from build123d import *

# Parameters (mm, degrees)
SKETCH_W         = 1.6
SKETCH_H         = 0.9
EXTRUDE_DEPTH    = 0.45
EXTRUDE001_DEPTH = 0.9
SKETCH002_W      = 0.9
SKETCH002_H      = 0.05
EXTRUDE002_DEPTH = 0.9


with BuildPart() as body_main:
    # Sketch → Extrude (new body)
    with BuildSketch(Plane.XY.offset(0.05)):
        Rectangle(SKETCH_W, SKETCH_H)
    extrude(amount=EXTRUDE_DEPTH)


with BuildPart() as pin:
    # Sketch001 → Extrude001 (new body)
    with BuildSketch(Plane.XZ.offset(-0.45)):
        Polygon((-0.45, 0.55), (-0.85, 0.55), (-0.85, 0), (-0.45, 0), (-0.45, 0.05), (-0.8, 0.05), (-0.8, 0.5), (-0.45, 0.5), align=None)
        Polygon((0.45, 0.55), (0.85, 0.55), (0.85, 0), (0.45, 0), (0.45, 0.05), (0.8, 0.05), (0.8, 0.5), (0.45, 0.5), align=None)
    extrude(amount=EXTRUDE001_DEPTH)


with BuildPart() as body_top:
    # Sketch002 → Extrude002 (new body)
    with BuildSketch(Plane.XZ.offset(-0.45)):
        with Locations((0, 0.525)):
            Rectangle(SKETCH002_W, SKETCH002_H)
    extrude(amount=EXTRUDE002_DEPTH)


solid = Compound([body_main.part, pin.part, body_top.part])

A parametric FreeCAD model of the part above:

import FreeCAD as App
import Part
import Sketcher

V = App.Vector

doc = App.newDocument("Part")
body = doc.addObject("PartDesign::Body", "Body")

# Sketch on XY plane
sketch1 = body.newObject("Sketcher::SketchObject", "Sketch")
sketch1.AttachmentSupport = (doc.getObject("XY_Plane"), [""])
sketch1.MapMode = "FlatFace"
sketch1.AttachmentOffset = App.Placement(V(0, 0, 0.05), App.Rotation())
sketch1.addGeometry([
    Part.LineSegment(V(-0.8, 0.5, 0), V(-0.8, -0.5, 0)),
    Part.LineSegment(V(-0.8, -0.5, 0), V(0.8, -0.5, 0)),
    Part.LineSegment(V(0.8, -0.5, 0), V(0.8, 0.5, 0)),
    Part.LineSegment(V(0.8, 0.5, 0), V(-0.8, 0.5, 0)),
], False)
sketch1.addConstraint([
    Sketcher.Constraint("Coincident", 0, 2, 1, 1),
    Sketcher.Constraint("Coincident", 1, 2, 2, 1),
    Sketcher.Constraint("Coincident", 2, 2, 3, 1),
    Sketcher.Constraint("Coincident", 3, 2, 0, 1),
    Sketcher.Constraint("Vertical", 0),
    Sketcher.Constraint("Horizontal", 1),
    Sketcher.Constraint("Vertical", 2),
    Sketcher.Constraint("Horizontal", 3),
    Sketcher.Constraint("Symmetric", 0, 2, 2, 2, -1, 1),
    Sketcher.Constraint("DistanceX", 1, 1, 1, 2, 1.6),
    Sketcher.Constraint("DistanceY", 0, 2, 0, 1, 0.9),
])
pad1 = body.newObject("PartDesign::Pad", "Pad")
pad1.Profile = sketch1
pad1.Length = 0.45
body2 = doc.addObject("PartDesign::Body", "Body001")
body2.AllowCompound = True

# Sketch on XZ plane
sketch2 = body2.newObject("Sketcher::SketchObject", "Sketch001")
sketch2.AttachmentSupport = (doc.getObject("XZ_Plane001"), [""])
sketch2.MapMode = "FlatFace"
sketch2.AttachmentOffset = App.Placement(V(0, 0, -0.45), App.Rotation())
sketch2.addGeometry([
    Part.LineSegment(V(-0.45, 0.55, 0), V(-0.85, 0.55, 0)),  # 0
    Part.LineSegment(V(-0.85, 0.55, 0), V(-0.85, 0, 0)),  # 1
    Part.LineSegment(V(-0.85, 0, 0), V(-0.45, 0, 0)),  # 2
    Part.LineSegment(V(-0.45, 0, 0), V(-0.45, 0.05, 0)),  # 3
    Part.LineSegment(V(-0.45, 0.05, 0), V(-0.8, 0.05, 0)),  # 4
    Part.LineSegment(V(-0.8, 0.05, 0), V(-0.8, 0.5, 0)),  # 5
    Part.LineSegment(V(-0.8, 0.5, 0), V(-0.45, 0.5, 0)),  # 6
    Part.LineSegment(V(-0.45, 0.5, 0), V(-0.45, 0.55, 0)),  # 7
    Part.LineSegment(V(0.85, 0.55, 0), V(0.45, 0.55, 0)),  # 8
    Part.LineSegment(V(0.45, 0.55, 0), V(0.45, 0.5, 0)),  # 9
    Part.LineSegment(V(0.45, 0.5, 0), V(0.8, 0.5, 0)),  # 10
    Part.LineSegment(V(0.8, 0.5, 0), V(0.8, 0.05, 0)),  # 11
    Part.LineSegment(V(0.8, 0.05, 0), V(0.45, 0.05, 0)),  # 12
    Part.LineSegment(V(0.45, 0.05, 0), V(0.45, 0, 0)),  # 13
    Part.LineSegment(V(0.45, 0, 0), V(0.85, 0, 0)),  # 14
    Part.LineSegment(V(0.85, 0, 0), V(0.85, 0.55, 0)),  # 15
], False)
sketch2.addConstraint([
    Sketcher.Constraint("Coincident", 0, 2, 1, 1),
    Sketcher.Constraint("Coincident", 1, 2, 2, 1),
    Sketcher.Constraint("Coincident", 2, 2, 3, 1),
    Sketcher.Constraint("Coincident", 3, 2, 4, 1),
    Sketcher.Constraint("Coincident", 4, 2, 5, 1),
    Sketcher.Constraint("Coincident", 5, 2, 6, 1),
    Sketcher.Constraint("Coincident", 6, 2, 7, 1),
    Sketcher.Constraint("Coincident", 7, 2, 0, 1),
    Sketcher.Constraint("Coincident", 8, 2, 9, 1),
    Sketcher.Constraint("Coincident", 9, 2, 10, 1),
    Sketcher.Constraint("Coincident", 10, 2, 11, 1),
    Sketcher.Constraint("Coincident", 11, 2, 12, 1),
    Sketcher.Constraint("Coincident", 12, 2, 13, 1),
    Sketcher.Constraint("Coincident", 13, 2, 14, 1),
    Sketcher.Constraint("Coincident", 14, 2, 15, 1),
    Sketcher.Constraint("Coincident", 15, 2, 8, 1),
    Sketcher.Constraint("Horizontal", 0),
    Sketcher.Constraint("Vertical", 1),
    Sketcher.Constraint("Horizontal", 2),
    Sketcher.Constraint("Vertical", 3),
    Sketcher.Constraint("Horizontal", 4),
    Sketcher.Constraint("Vertical", 5),
    Sketcher.Constraint("Horizontal", 6),
    Sketcher.Constraint("Vertical", 7),
    Sketcher.Constraint("Horizontal", 8),
    Sketcher.Constraint("Vertical", 9),
    Sketcher.Constraint("Horizontal", 10),
    Sketcher.Constraint("Vertical", 11),
    Sketcher.Constraint("Horizontal", 12),
    Sketcher.Constraint("Vertical", 13),
    Sketcher.Constraint("Horizontal", 14),
    Sketcher.Constraint("Vertical", 15),
    Sketcher.Constraint("Symmetric", 2, 2, 13, 2, -1, 1),
    Sketcher.Constraint("Symmetric", 7, 2, 8, 2, -2),
    Sketcher.Constraint("Symmetric", 5, 2, 10, 2, -2),
    Sketcher.Constraint("Symmetric", 1, 2, 14, 2, -2),
    Sketcher.Constraint("Horizontal", 4, 2, 11, 2),
    Sketcher.Constraint("Vertical", 3, 2, 6, 2),
    Sketcher.Constraint("Equal", 3, 7),
    Sketcher.Constraint("DistanceX", 0, 2, 0, 1, 0.4),
    Sketcher.Constraint("DistanceX", 4, 2, 4, 1, 0.35),
    Sketcher.Constraint("DistanceY", 1, 2, 1, 1, 0.55),
    Sketcher.Constraint("DistanceY", 3, 1, 3, 2, 0.05),
    Sketcher.Constraint("DistanceX", 4, 2, -1, 1, 0.8),
])
pad2 = body2.newObject("PartDesign::Pad", "Pad001")
pad2.Profile = sketch2
pad2.Length = 0.9
body3 = doc.addObject("PartDesign::Body", "Body002")

# Sketch on XZ plane
sketch3 = body3.newObject("Sketcher::SketchObject", "Sketch002")
sketch3.AttachmentSupport = (doc.getObject("XZ_Plane002"), [""])
sketch3.MapMode = "FlatFace"
sketch3.AttachmentOffset = App.Placement(V(0, 0, -0.45), App.Rotation())
sketch3.addGeometry([
    Part.LineSegment(V(-0.45, 0.55, 0), V(-0.45, 0.5, 0)),
    Part.LineSegment(V(-0.45, 0.5, 0), V(0.45, 0.5, 0)),
    Part.LineSegment(V(0.45, 0.5, 0), V(0.45, 0.55, 0)),
    Part.LineSegment(V(0.45, 0.55, 0), V(-0.45, 0.55, 0)),
], False)
sketch3.addConstraint([
    Sketcher.Constraint("Coincident", 0, 2, 1, 1),
    Sketcher.Constraint("Coincident", 1, 2, 2, 1),
    Sketcher.Constraint("Coincident", 2, 2, 3, 1),
    Sketcher.Constraint("Coincident", 3, 2, 0, 1),
    Sketcher.Constraint("Vertical", 0),
    Sketcher.Constraint("Horizontal", 1),
    Sketcher.Constraint("Vertical", 2),
    Sketcher.Constraint("Horizontal", 3),
    Sketcher.Constraint("DistanceX", 1, 1, 1, 2, 0.9),
    Sketcher.Constraint("DistanceY", 0, 2, 0, 1, 0.05),
    Sketcher.Constraint("DistanceY", -1, 1, 0, 2, 0.5),
    Sketcher.Constraint("DistanceX", 0, 2, -1, 1, 0.45),
])
pad3 = body3.newObject("PartDesign::Pad", "Pad002")
pad3.Profile = sketch3
pad3.Length = 0.9

doc.recompute()
